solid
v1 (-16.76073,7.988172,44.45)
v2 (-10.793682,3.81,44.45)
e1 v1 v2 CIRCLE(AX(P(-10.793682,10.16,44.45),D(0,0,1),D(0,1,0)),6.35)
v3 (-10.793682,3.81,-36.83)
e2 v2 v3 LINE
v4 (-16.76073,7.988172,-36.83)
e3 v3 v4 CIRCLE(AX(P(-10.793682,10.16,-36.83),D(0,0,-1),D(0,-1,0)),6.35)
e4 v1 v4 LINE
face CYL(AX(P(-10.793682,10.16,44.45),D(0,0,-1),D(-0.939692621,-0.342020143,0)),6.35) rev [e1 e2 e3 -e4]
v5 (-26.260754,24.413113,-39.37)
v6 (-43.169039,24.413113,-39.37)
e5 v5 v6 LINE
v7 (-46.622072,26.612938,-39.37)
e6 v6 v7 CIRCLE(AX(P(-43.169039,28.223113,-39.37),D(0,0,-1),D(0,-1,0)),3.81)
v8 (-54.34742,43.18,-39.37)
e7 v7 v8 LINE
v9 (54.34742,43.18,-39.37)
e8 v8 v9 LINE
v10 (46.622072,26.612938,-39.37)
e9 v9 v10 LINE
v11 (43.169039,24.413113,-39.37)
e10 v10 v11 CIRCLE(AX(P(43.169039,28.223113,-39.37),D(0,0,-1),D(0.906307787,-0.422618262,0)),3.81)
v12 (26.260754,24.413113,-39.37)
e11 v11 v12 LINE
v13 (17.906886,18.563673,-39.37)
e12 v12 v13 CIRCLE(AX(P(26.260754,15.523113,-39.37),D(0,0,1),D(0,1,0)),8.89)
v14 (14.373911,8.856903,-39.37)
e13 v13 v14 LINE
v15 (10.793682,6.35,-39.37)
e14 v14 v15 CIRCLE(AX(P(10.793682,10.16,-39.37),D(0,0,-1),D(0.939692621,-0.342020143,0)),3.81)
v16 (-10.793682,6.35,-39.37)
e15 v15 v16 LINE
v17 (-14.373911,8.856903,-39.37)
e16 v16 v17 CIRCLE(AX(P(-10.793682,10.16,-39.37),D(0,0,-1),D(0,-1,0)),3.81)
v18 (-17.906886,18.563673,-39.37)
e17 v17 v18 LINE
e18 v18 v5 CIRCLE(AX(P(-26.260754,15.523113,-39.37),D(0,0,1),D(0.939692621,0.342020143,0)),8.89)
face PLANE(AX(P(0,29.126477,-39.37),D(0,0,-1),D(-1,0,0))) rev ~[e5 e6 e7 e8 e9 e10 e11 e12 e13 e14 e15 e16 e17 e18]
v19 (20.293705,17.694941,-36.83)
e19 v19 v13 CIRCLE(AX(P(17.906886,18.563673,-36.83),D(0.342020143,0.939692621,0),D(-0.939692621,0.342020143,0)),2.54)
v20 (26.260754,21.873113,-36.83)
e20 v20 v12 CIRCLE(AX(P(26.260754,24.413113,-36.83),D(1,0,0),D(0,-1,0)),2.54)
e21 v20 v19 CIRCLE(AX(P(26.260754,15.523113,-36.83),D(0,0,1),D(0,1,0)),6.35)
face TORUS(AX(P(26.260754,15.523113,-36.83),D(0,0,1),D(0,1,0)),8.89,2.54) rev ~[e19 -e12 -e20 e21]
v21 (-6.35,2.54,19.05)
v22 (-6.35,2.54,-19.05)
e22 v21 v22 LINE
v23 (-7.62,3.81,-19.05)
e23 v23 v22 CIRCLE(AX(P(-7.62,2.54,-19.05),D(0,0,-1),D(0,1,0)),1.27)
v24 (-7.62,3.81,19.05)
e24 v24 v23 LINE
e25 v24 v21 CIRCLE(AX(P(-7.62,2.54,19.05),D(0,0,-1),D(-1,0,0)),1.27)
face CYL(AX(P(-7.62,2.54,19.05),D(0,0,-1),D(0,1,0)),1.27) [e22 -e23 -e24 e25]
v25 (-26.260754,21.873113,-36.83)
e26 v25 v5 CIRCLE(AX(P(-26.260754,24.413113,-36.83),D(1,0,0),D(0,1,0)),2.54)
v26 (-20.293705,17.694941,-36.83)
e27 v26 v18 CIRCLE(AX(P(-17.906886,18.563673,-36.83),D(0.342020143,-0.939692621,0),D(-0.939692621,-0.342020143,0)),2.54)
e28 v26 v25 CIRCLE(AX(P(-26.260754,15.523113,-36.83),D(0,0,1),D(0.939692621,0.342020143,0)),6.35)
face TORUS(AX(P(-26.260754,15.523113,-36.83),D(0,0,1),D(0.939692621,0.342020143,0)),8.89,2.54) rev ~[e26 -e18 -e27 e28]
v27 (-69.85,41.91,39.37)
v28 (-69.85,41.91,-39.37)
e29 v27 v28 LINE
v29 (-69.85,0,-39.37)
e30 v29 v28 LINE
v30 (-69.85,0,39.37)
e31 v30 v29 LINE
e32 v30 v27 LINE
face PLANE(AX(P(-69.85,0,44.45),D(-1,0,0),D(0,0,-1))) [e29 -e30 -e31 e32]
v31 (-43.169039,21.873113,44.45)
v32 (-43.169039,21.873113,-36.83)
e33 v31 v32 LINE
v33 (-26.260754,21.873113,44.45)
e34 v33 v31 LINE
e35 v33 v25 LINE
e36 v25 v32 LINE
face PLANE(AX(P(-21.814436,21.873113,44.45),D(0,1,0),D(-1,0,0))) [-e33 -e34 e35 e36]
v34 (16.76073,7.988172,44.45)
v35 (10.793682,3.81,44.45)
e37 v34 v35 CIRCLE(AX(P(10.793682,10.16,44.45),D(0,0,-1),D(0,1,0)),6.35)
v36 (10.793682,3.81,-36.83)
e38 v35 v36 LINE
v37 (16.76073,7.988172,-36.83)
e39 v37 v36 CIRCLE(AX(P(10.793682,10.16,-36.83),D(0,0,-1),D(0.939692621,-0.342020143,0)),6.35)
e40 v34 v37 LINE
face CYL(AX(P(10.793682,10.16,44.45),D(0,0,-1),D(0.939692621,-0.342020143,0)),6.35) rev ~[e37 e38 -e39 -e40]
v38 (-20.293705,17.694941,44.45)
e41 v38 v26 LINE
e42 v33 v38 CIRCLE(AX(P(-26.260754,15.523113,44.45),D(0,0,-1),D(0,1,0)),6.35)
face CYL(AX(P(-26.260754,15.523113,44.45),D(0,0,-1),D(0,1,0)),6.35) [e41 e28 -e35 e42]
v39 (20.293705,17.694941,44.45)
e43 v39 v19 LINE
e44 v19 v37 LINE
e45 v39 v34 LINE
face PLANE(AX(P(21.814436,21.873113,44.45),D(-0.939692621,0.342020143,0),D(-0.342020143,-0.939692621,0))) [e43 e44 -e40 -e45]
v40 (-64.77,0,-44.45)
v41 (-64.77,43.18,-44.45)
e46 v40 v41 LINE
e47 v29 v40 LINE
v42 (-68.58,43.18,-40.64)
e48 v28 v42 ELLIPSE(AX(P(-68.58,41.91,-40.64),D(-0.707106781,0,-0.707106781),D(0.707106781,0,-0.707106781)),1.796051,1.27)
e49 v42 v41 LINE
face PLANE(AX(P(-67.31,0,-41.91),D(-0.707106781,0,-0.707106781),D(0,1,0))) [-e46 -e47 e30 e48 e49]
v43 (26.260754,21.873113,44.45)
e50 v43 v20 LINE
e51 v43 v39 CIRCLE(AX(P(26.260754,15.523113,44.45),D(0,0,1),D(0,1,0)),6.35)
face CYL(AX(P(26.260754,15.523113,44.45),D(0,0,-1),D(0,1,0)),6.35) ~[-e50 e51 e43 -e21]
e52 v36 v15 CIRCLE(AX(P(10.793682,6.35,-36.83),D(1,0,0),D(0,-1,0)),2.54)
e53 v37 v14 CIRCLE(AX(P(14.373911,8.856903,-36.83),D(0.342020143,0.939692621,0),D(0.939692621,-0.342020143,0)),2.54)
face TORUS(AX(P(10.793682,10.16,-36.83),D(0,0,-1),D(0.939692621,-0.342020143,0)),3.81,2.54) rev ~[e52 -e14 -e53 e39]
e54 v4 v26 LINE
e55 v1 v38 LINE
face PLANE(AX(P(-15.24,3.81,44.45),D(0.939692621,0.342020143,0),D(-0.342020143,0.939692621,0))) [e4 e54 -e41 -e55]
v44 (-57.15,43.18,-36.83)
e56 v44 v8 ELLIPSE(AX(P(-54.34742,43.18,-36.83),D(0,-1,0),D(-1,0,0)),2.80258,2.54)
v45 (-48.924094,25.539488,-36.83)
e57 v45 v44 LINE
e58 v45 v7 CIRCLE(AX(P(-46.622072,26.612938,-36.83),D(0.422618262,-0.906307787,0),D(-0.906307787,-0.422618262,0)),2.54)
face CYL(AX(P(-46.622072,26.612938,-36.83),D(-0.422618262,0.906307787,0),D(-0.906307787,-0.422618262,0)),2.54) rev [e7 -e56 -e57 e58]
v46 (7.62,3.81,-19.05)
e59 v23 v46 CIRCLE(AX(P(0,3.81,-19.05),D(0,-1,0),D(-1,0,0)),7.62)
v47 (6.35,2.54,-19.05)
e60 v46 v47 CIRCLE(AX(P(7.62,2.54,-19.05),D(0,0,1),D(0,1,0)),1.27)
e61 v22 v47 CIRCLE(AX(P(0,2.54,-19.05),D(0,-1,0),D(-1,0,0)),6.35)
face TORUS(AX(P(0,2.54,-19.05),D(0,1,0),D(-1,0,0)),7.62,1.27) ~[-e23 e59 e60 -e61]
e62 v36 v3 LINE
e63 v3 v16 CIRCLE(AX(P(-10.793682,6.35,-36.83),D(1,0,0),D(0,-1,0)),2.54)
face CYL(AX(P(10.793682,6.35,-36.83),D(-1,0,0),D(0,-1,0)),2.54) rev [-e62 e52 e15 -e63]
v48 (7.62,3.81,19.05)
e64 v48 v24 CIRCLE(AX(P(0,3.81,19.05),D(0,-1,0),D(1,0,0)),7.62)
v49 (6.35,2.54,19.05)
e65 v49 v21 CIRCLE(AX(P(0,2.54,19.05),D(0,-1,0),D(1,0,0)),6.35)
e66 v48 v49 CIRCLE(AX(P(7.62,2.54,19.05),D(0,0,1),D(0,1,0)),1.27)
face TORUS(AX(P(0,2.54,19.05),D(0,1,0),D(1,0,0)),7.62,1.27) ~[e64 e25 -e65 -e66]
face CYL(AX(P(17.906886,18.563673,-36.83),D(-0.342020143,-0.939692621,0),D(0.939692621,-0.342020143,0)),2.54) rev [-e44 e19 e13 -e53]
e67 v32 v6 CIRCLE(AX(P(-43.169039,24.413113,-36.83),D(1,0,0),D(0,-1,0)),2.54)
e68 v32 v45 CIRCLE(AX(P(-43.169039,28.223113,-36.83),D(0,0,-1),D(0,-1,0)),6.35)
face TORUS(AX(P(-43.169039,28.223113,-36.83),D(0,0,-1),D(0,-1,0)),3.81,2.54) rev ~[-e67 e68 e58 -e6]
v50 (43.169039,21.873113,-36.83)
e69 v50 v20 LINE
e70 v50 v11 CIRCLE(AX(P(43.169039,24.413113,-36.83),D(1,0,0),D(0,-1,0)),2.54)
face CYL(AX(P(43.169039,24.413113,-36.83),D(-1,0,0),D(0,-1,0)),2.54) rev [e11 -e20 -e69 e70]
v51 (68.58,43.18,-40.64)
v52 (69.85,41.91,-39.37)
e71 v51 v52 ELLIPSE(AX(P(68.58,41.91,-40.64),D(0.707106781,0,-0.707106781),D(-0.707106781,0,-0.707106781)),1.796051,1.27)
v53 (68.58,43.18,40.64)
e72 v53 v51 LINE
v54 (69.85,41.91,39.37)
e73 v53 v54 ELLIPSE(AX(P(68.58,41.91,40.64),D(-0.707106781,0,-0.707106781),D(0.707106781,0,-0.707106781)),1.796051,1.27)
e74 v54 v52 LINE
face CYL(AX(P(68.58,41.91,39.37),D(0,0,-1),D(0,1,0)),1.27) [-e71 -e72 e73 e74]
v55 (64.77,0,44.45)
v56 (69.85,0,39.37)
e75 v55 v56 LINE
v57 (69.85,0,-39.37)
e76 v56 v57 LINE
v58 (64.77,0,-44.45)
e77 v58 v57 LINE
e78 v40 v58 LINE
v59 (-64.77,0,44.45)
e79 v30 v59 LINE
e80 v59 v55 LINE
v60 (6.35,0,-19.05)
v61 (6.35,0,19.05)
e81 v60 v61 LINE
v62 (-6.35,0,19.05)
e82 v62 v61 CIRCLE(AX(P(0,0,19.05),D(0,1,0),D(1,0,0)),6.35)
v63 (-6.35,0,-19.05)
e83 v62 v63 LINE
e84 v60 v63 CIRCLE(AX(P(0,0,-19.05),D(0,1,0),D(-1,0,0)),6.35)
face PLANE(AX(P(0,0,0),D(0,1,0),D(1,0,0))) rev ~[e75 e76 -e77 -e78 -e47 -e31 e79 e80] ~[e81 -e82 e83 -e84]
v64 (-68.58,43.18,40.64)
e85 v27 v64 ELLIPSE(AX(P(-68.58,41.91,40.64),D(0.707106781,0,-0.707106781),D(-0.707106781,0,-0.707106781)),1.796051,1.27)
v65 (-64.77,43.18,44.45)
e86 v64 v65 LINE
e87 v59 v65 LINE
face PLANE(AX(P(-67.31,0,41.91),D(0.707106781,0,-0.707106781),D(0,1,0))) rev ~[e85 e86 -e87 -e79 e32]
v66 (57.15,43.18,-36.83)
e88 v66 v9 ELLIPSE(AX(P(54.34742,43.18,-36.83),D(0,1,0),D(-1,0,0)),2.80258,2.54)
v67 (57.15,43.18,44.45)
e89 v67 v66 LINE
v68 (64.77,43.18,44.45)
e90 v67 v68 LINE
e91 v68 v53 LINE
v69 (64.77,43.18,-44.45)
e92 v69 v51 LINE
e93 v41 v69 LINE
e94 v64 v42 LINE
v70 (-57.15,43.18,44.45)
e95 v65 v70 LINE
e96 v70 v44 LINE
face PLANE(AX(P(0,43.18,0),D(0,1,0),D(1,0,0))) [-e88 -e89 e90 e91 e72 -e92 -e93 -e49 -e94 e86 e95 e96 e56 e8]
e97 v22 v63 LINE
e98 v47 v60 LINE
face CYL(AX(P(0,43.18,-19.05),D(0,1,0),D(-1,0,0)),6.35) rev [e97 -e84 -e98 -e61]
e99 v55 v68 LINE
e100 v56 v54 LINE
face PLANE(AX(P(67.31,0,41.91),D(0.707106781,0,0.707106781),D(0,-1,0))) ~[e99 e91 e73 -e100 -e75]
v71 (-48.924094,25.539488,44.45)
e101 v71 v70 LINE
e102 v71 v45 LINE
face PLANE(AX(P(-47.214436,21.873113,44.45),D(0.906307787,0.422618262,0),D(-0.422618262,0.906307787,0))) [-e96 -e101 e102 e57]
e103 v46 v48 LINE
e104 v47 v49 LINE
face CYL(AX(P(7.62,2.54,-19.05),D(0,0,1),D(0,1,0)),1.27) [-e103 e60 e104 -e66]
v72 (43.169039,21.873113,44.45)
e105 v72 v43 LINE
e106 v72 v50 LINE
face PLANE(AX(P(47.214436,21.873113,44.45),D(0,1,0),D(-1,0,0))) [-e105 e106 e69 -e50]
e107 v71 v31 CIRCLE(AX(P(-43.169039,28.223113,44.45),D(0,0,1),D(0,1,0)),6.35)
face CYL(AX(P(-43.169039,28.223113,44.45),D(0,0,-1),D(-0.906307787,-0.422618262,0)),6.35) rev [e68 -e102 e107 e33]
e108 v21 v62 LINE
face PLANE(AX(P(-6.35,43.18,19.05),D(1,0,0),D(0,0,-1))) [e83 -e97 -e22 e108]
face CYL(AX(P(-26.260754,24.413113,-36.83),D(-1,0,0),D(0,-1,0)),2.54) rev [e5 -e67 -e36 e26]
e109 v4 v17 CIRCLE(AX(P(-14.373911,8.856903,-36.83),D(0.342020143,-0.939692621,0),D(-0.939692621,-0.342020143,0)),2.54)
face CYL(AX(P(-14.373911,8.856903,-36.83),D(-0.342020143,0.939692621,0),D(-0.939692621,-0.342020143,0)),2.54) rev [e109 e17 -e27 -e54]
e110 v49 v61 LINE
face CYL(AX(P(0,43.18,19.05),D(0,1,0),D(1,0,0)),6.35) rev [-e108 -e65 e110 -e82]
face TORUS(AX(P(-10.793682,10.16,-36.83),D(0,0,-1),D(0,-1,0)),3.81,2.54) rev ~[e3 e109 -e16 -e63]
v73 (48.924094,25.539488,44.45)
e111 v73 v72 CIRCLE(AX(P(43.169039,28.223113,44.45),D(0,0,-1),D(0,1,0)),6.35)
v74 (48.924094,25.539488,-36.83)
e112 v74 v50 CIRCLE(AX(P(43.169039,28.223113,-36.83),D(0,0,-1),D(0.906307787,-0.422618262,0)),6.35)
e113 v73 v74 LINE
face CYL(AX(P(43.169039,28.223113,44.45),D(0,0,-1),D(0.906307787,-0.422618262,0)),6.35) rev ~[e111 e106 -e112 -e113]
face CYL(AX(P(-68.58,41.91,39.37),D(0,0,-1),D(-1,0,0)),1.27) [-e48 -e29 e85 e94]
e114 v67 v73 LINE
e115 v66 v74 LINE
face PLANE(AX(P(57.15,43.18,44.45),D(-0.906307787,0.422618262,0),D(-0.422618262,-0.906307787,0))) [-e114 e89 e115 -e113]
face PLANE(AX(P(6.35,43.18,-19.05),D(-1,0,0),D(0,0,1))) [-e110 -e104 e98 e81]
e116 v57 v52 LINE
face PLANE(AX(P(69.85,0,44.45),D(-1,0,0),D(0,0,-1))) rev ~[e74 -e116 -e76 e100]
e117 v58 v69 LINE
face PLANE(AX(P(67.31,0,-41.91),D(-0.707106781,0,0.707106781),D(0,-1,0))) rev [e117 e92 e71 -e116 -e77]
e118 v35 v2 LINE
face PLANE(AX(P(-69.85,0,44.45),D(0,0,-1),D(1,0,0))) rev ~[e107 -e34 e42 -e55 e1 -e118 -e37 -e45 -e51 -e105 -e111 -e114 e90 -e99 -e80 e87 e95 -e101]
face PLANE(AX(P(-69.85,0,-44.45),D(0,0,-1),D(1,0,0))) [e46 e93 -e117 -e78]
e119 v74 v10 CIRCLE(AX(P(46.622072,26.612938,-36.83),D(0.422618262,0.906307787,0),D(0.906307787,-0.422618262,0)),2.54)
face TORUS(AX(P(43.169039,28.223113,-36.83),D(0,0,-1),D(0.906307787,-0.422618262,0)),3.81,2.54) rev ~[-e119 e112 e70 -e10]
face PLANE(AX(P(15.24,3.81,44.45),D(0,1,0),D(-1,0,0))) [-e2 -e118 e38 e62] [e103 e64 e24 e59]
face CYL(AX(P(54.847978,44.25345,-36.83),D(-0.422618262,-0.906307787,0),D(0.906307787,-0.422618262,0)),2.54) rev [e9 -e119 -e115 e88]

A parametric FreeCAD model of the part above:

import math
import FreeCAD as App
import Part
import Sketcher
from FreeCAD import Vector
Q = App.Units.Quantity


def edges_at(feature, points):
    """Names of the edges that pass closest to the given points."""
    edges = feature.Shape.Edges
    near = lambda p: min(range(len(edges)), key=lambda i: edges[i].distToShape(Part.Vertex(*p))[0])
    return sorted({f"Edge{near(p) + 1}" for p in points})

doc = App.newDocument("Part")
body = doc.addObject("PartDesign::Body", "Body")

sketch1 = body.newObject("Sketcher::SketchObject", "Sketch")
sketch1.AttachmentSupport = (doc.getObject("XZ_Plane"), [""])
sketch1.MapMode = "FlatFace"
sketch1.addGeometry([
    Part.LineSegment(Vector(-70, -44, 0), Vector(-70, 44, 0)),
    Part.LineSegment(Vector(-70, 44, 0), Vector(70, 44, 0)),
    Part.LineSegment(Vector(70, 44, 0), Vector(70, -44, 0)),
    Part.LineSegment(Vector(70, -44, 0), Vector(-70, -44, 0)),
], False)
sketch1.addConstraint([
    Sketcher.Constraint("Coincident", 0, 2, 1, 1),
    Sketcher.Constraint("Coincident", 1, 2, 2, 1),
    Sketcher.Constraint("Coincident", 2, 2, 3, 1),
    Sketcher.Constraint("Coincident", 3, 2, 0, 1),
    Sketcher.Constraint("Vertical", 0),
    Sketcher.Constraint("Horizontal", 1),
    Sketcher.Constraint("Vertical", 2),
    Sketcher.Constraint("Horizontal", 3),
    Sketcher.Constraint("Symmetric", 0, 2, 2, 2, -1, 1),
    Sketcher.Constraint("DistanceX", 1, 1, 1, 2, Q("5.5 in")),
    Sketcher.Constraint("DistanceY", 0, 1, 0, 2, Q("3.5 in")),
])
pad1 = body.newObject("PartDesign::Pad", "Pad")
pad1.Profile = sketch1
pad1.Length = Q("1.7 in")
pad1.Reversed = True

sketch2 = body.newObject("Sketcher::SketchObject", "Sketch001")
sketch2.AttachmentSupport = (doc.getObject("XY_Plane"), [""])
sketch2.MapMode = "FlatFace"
sketch2.AttachmentOffset = App.Placement(Vector(0, 0, 1.75 * 25.4), App.Rotation())
sketch2.addGeometry([
    Part.LineSegment(Vector(57, 43, 0), Vector(-57, 43, 0)),
    Part.LineSegment(Vector(-57, 43, 0), Vector(-47, 22, 0)),
    Part.LineSegment(Vector(-47, 22, 0), Vector(-22, 22, 0)),
    Part.LineSegment(Vector(-22, 22, 0), Vector(-15, 4, 0)),
    Part.LineSegment(Vector(-15, 4, 0), Vector(15, 4, 0)),
    Part.LineSegment(Vector(15, 4, 0), Vector(22, 22, 0)),
    Part.LineSegment(Vector(22, 22, 0), Vector(47, 22, 0)),
    Part.LineSegment(Vector(47, 22, 0), Vector(57, 43, 0)),
], False)
sketch2.addConstraint([
    Sketcher.Constraint("Coincident", 0, 2, 1, 1),
    Sketcher.Constraint("Coincident", 1, 2, 2, 1),
    Sketcher.Constraint("Coincident", 2, 2, 3, 1),
    Sketcher.Constraint("Coincident", 3, 2, 4, 1),
    Sketcher.Constraint("Coincident", 4, 2, 5, 1),
    Sketcher.Constraint("Coincident", 5, 2, 6, 1),
    Sketcher.Constraint("Coincident", 6, 2, 7, 1),
    Sketcher.Constraint("Coincident", 7, 2, 0, 1),
    Sketcher.Constraint("Horizontal", 0),
    Sketcher.Constraint("Horizontal", 2),
    Sketcher.Constraint("Horizontal", 4),
    Sketcher.Constraint("Horizontal", 6),
    Sketcher.Constraint("Symmetric", 2, 2, 5, 2, -2),
    Sketcher.Constraint("Equal", 2, 6),
    Sketcher.Constraint("Equal", 3, 5),
    Sketcher.Constraint("Equal", 1, 7),
    Sketcher.Constraint("DistanceX", 2, 1, 2, 2, Q("1 in")),
    Sketcher.Constraint("DistanceX", 0, 2, 0, 1, Q("4.5 in")),
    Sketcher.Constraint("DistanceX", 4, 1, 4, 2, Q("1.2 in")),
    Sketcher.Constraint("Angle", 1, Q("-65 deg")),
    Sketcher.Constraint("Angle", 3, Q("-70 deg")),
    Sketcher.Constraint("DistanceY", -1, 1, 0, 2, Q("1.7 in")),
    Sketcher.Constraint("DistanceY", -1, 1, 3, 2, Q("0.15 in")),
])
pocket1 = body.newObject("PartDesign::Pocket", "Pocket")
pocket1.Profile = sketch2
pocket1.Length = Q("3.3 in")

sketch3 = body.newObject("Sketcher::SketchObject", "Sketch002")
sketch3.AttachmentSupport = (doc.getObject("XZ_Plane"), [""])
sketch3.MapMode = "FlatFace"
sketch3.AttachmentOffset = App.Placement(Vector(0, 0, -1.7 * 25.4), App.Rotation())
sketch3.addGeometry([
    Part.LineSegment(Vector(-6, -19, 0), Vector(-6, 19, 0)),
    Part.ArcOfCircle(Part.Circle(Vector(0, 19, 0), Vector(0, 0, 1), 6), math.radians(0), math.radians(180)),
    Part.LineSegment(Vector(6, 19, 0), Vector(6, -19, 0)),
    Part.ArcOfCircle(Part.Circle(Vector(0, -19, 0), Vector(0, 0, 1), 6), math.radians(180), math.radians(360)),
], False)
sketch3.addConstraint([
    Sketcher.Constraint("Tangent", 0, 2, 1, 2),
    Sketcher.Constraint("Tangent", 1, 1, 2, 1),
    Sketcher.Constraint("Tangent", 2, 2, 3, 2),
    Sketcher.Constraint("Tangent", 3, 1, 0, 1),
    Sketcher.Constraint("Vertical", 0),
    Sketcher.Constraint("Vertical", 2),
    Sketcher.Constraint("Symmetric", 1, 3, 3, 3, -1, 1),
    Sketcher.Constraint("Radius", 1, Q("0.25 in")),
    Sketcher.Constraint("DistanceY", 0, 1, 0, 2, Q("1.5 in")),
])
pocket2 = body.newObject("PartDesign::Pocket", "Pocket001")
pocket2.Profile = sketch3
pocket2.Type = "ThroughAll"
pocket2.Reversed = True
doc.recompute()

chamfer = body.newObject("PartDesign::Chamfer", "Chamfer")
chamfer.Base = (pocket2, edges_at(pocket2, [
    (69.85, 21.59, 44.45),
    (-69.85, 21.59, 44.45),
    (-69.85, 21.59, -44.45),
    (69.85, 21.59, -44.45),
]))
chamfer.Size = Q("0.2 in")
doc.recompute()

fillet = body.newObject("PartDesign::Fillet", "Fillet")
fillet.Base = (chamfer, edges_at(chamfer, [(-69.85, 43.18, 0), (69.85, 43.18, 0)]))
fillet.Radius = Q("0.05 in")
doc.recompute()

fillet2 = body.newObject("PartDesign::Fillet", "Fillet001")
fillet2.Base = (fillet, edges_at(fillet, [
    (-47.214, 21.873, 2.54),
    (47.214, 21.873, 2.54),
    (21.814, 21.873, 2.54),
    (15.24, 3.81, 2.54),
    (-15.24, 3.81, 2.54),
    (-21.814, 21.873, 2.54),
]))
fillet2.Radius = Q("0.25 in")
doc.recompute()

fillet3 = body.newObject("PartDesign::Fillet", "Fillet002")
fillet3.Base = (fillet2, edges_at(fillet2, [
    (53.037, 34.36, -39.37),
    (34.715, 21.873, -39.37),
    (-34.715, 21.873, -39.37),
    (-18.527, 12.842, -39.37),
    (0, 3.81, -39.37),
    (18.527, 12.842, -39.37),
    (-46.581, 22.868, -39.37),
    (-14.436, 4.958, -39.37),
    (14.436, 4.958, -39.37),
    (46.581, 22.868, -39.37),
    (22.619, 20.725, -39.37),
    (-22.619, 20.725, -39.37),
    (-53.037, 34.36, -39.37),
]))
fillet3.Radius = Q("0.1 in")
doc.recompute()

fillet4 = body.newObject("PartDesign::Fillet", "Fillet003")
fillet4.Base = (fillet3, edges_at(fillet3, [
    (6.35, 3.81, 0),
    (0, 3.81, -25.4),
    (-6.35, 3.81, 0),
    (0, 3.81, 25.4),
]))
fillet4.Radius = Q("0.05 in")

doc.recompute()
